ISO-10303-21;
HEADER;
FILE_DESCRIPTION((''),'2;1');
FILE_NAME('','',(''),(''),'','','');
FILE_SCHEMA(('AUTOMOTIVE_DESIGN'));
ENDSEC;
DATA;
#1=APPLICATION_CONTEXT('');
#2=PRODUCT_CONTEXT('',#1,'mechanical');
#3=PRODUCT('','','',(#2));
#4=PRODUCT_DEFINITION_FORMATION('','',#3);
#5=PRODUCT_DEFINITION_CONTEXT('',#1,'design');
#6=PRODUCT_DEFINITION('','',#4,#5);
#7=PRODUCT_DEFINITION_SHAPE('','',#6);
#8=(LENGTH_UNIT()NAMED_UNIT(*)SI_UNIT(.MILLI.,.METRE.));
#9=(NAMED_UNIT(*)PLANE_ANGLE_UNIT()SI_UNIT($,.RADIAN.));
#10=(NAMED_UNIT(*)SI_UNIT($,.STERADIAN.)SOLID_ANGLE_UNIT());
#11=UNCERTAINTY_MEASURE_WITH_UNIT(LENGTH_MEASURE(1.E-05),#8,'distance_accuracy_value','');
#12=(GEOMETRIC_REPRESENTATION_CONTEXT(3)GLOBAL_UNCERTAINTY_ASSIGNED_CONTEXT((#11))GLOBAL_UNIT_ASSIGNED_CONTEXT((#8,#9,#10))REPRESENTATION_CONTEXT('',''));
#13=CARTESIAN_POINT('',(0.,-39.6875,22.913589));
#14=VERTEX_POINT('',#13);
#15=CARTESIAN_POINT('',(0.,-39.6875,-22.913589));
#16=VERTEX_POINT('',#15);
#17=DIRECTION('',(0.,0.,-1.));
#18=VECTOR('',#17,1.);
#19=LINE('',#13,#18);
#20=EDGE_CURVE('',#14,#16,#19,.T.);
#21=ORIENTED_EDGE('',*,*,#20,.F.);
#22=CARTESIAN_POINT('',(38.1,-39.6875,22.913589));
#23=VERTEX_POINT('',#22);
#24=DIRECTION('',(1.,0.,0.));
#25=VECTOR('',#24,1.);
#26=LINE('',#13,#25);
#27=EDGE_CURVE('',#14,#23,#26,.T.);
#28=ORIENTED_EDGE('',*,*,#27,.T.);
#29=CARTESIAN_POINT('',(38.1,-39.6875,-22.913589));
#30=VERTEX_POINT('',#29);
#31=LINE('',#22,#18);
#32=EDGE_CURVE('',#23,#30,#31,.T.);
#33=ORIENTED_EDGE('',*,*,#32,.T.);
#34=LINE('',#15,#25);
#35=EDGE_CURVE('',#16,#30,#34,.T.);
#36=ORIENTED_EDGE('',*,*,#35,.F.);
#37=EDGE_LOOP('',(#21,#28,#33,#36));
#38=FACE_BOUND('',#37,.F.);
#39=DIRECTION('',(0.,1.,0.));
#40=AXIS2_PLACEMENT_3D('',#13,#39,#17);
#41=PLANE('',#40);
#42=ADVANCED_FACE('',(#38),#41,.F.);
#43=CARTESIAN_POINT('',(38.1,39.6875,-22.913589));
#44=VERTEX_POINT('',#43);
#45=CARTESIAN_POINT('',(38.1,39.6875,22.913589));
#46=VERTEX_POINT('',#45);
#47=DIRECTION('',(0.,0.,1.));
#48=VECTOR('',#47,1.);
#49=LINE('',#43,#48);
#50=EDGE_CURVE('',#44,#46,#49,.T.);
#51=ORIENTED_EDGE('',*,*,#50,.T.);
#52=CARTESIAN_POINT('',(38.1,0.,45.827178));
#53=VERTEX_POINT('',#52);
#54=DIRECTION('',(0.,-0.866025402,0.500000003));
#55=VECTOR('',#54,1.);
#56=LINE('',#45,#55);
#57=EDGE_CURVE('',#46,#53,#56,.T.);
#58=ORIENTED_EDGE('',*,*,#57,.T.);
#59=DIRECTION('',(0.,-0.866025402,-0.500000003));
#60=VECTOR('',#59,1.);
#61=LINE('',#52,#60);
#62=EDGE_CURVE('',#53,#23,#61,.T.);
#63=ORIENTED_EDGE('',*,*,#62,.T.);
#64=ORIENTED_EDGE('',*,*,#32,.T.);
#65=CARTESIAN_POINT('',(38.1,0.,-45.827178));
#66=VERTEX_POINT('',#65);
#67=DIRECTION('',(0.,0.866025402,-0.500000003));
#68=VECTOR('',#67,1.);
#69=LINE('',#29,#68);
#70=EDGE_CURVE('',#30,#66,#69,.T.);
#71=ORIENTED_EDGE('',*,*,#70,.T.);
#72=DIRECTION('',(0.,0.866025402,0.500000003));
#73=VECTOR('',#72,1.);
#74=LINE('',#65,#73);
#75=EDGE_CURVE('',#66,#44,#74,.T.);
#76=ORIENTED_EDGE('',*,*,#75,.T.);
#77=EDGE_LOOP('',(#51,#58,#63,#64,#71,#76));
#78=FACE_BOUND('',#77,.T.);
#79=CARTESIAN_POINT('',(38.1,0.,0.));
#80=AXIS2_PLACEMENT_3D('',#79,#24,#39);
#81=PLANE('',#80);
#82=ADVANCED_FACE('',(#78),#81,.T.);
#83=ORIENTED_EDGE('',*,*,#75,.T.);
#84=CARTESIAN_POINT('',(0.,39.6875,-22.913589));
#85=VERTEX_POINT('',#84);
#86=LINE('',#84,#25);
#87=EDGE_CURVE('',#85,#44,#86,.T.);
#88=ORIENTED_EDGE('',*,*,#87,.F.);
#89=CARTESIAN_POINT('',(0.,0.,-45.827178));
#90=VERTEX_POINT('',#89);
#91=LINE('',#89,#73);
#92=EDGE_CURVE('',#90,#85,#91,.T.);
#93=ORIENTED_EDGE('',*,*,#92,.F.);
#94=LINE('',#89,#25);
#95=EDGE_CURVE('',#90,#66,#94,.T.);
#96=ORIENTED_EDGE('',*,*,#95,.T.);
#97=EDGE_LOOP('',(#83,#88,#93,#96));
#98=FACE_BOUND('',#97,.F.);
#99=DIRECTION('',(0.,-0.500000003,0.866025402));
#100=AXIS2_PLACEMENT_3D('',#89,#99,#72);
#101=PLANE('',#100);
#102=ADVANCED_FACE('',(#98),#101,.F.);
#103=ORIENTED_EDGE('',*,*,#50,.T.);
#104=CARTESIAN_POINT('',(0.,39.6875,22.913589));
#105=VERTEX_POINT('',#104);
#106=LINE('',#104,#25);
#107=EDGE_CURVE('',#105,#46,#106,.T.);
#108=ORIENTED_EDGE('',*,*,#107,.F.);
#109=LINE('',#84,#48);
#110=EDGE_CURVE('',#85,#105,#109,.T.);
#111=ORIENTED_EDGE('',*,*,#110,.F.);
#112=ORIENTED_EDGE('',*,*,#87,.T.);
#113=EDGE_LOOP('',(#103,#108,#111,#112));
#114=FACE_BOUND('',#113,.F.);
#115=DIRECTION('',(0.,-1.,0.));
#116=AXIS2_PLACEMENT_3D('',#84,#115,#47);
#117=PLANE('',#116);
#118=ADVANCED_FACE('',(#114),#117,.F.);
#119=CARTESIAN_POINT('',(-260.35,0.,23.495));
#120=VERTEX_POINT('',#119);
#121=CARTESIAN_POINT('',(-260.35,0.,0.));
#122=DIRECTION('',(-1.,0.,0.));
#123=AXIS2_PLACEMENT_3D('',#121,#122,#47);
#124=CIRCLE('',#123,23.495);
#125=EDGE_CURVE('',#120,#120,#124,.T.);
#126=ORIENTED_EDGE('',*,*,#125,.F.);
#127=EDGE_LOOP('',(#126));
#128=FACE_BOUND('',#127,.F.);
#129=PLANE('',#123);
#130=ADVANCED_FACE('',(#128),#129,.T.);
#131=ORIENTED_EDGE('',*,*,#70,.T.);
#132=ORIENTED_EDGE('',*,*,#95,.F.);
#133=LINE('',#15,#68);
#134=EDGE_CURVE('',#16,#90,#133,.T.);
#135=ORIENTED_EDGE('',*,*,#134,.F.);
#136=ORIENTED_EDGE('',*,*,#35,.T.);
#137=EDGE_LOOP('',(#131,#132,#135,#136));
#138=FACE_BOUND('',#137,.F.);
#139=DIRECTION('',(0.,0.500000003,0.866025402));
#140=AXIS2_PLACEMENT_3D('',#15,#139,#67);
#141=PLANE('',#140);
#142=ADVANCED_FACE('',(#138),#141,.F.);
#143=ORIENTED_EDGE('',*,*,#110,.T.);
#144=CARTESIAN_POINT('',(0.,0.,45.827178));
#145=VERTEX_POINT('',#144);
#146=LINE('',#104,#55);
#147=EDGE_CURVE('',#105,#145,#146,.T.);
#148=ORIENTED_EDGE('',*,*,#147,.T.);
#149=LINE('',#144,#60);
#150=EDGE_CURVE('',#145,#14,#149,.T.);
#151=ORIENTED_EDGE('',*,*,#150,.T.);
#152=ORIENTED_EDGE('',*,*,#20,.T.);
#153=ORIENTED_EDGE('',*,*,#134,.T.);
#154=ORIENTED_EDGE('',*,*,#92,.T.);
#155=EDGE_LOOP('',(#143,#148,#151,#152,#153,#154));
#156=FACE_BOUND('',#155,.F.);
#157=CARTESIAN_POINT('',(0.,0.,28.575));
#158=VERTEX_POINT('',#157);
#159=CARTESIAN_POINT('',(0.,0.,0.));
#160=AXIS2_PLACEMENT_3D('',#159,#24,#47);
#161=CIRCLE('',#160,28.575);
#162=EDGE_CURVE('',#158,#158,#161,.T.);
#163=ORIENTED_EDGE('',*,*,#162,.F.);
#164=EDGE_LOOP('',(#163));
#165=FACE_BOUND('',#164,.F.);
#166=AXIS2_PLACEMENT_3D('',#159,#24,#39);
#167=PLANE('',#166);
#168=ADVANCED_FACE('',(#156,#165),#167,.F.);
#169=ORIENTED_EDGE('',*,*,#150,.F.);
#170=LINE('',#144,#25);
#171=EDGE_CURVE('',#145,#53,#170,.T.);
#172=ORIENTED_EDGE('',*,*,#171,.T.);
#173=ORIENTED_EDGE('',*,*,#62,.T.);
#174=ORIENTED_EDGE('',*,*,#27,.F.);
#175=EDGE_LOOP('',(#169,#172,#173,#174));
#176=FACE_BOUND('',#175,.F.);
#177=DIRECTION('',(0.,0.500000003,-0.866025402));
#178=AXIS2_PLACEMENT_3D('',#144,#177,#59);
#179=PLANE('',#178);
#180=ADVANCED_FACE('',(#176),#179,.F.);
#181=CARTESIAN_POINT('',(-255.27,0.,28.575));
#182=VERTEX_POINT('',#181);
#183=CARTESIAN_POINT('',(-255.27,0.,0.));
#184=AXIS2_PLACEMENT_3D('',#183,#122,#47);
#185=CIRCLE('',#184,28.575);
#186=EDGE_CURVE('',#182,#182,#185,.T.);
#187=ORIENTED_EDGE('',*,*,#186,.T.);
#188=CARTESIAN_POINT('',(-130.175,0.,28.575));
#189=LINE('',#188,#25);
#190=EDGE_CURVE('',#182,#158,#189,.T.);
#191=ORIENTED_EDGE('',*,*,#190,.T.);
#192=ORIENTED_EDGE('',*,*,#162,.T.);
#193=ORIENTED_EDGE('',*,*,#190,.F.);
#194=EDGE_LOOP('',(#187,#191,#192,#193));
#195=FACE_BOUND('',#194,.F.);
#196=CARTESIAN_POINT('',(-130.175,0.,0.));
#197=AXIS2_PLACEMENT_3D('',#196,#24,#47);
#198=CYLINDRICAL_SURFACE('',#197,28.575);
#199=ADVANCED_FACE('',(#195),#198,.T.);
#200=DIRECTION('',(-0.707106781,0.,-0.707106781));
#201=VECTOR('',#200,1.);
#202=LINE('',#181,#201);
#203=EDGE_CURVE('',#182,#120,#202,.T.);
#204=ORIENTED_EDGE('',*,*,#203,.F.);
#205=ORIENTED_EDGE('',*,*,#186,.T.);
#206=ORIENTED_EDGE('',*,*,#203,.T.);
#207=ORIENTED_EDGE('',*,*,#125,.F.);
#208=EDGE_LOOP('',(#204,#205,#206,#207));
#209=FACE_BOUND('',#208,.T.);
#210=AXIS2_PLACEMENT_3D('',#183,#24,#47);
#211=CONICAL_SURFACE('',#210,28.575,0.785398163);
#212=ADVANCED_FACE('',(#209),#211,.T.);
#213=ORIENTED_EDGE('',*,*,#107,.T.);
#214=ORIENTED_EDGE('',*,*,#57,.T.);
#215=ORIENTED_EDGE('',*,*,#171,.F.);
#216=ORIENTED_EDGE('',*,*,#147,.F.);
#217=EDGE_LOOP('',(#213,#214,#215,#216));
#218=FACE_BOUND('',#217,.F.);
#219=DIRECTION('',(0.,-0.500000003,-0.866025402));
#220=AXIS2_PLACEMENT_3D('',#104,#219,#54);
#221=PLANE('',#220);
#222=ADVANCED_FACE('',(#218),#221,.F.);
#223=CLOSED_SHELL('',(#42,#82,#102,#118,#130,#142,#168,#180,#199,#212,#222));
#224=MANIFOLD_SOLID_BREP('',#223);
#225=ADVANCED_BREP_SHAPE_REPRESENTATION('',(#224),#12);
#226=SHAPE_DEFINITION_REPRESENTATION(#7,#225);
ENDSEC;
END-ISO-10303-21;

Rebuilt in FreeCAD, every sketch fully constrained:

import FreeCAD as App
import Part
import Sketcher
from FreeCAD import Vector
Q = App.Units.Quantity


def edges_at(feature, points):
    """Names of the edges that pass closest to the given points."""
    edges = feature.Shape.Edges
    near = lambda p: min(range(len(edges)), key=lambda i: edges[i].distToShape(Part.Vertex(*p))[0])
    return sorted({f"Edge{near(p) + 1}" for p in points})

doc = App.newDocument("Part")
body = doc.addObject("PartDesign::Body", "Body")

sketch1 = body.newObject("Sketcher::SketchObject", "Sketch")
sketch1.AttachmentSupport = (doc.getObject("XZ_Plane"), [""])
sketch1.MapMode = "FlatFace"
sketch1.addGeometry(Part.LineSegment(Vector(-260, 29, 0), Vector(-260, 0, 0)), False)
sketch1.addGeometry(Part.LineSegment(Vector(-260, 0, 0), Vector(0, 0, 0)), False)
sketch1.addGeometry(Part.LineSegment(Vector(0, 0, 0), Vector(0, 29, 0)), False)
sketch1.addGeometry(Part.LineSegment(Vector(0, 29, 0), Vector(-260, 29, 0)), False)
sketch1.addConstraint(Sketcher.Constraint("Coincident", 0, 2, 1, 1))
sketch1.addConstraint(Sketcher.Constraint("Coincident", 1, 2, 2, 1))
sketch1.addConstraint(Sketcher.Constraint("Coincident", 2, 2, 3, 1))
sketch1.addConstraint(Sketcher.Constraint("Coincident", 3, 2, 0, 1))
sketch1.addConstraint(Sketcher.Constraint("Vertical", 0))
sketch1.addConstraint(Sketcher.Constraint("Horizontal", 1))
sketch1.addConstraint(Sketcher.Constraint("Vertical", 2))
sketch1.addConstraint(Sketcher.Constraint("Horizontal", 3))
sketch1.addConstraint(Sketcher.Constraint("Coincident", 1, 2, -1, 1))
sketch1.addConstraint(Sketcher.Constraint("DistanceX", 1, 1, 1, 2, Q("10.25 in")))
sketch1.addConstraint(Sketcher.Constraint("DistanceY", 0, 2, 0, 1, Q("1.125 in")))
revolution = body.newObject("PartDesign::Revolution", "Revolution")
revolution.Profile = sketch1
revolution.ReferenceAxis = (sketch1, ["H_Axis"])
revolution.Angle = 360

sketch2 = body.newObject("Sketcher::SketchObject", "Sketch001")
sketch2.AttachmentSupport = (doc.getObject("YZ_Plane"), [""])
sketch2.MapMode = "FlatFace"
sketch2.addGeometry(Part.LineSegment(Vector(-40, -23, 0), Vector(0, -46, 0)), False)
sketch2.addGeometry(Part.LineSegment(Vector(0, -46, 0), Vector(40, -23, 0)), False)
sketch2.addGeometry(Part.LineSegment(Vector(40, -23, 0), Vector(40, 23, 0)), False)
sketch2.addGeometry(Part.LineSegment(Vector(40, 23, 0), Vector(0, 46, 0)), False)
sketch2.addGeometry(Part.LineSegment(Vector(0, 46, 0), Vector(-40, 23, 0)), False)
sketch2.addGeometry(Part.LineSegment(Vector(-40, 23, 0), Vector(-40, -23, 0)), False)
sketch2.addConstraint(Sketcher.Constraint("Coincident", 0, 2, 1, 1))
sketch2.addConstraint(Sketcher.Constraint("Coincident", 1, 2, 2, 1))
sketch2.addConstraint(Sketcher.Constraint("Coincident", 2, 2, 3, 1))
sketch2.addConstraint(Sketcher.Constraint("Coincident", 3, 2, 4, 1))
sketch2.addConstraint(Sketcher.Constraint("Coincident", 4, 2, 5, 1))
sketch2.addConstraint(Sketcher.Constraint("Coincident", 5, 2, 0, 1))
sketch2.addConstraint(Sketcher.Constraint("Vertical", 2))
sketch2.addConstraint(Sketcher.Constraint("Vertical", 5))
sketch2.addConstraint(Sketcher.Constraint("Symmetric", 0, 2, 3, 2, -1, 1))
sketch2.addConstraint(Sketcher.Constraint("Symmetric", 1, 2, 4, 2, -1, 1))
sketch2.addConstraint(Sketcher.Constraint("PointOnObject", 0, 2, -2))
sketch2.addConstraint(Sketcher.Constraint("Parallel", 0, 3))
sketch2.addConstraint(Sketcher.Constraint("Horizontal", 2, 2, 4, 2))
sketch2.addConstraint(Sketcher.Constraint("Angle", 0, Q("-30 deg")))
sketch2.addConstraint(Sketcher.Constraint("DistanceX", -1, 1, 1, 2, Q("1.5625 in")))
sketch2.addConstraint(Sketcher.Constraint("DistanceY", 2, 1, 2, 2, 45.827178))
pad1 = body.newObject("PartDesign::Pad", "Pad")
pad1.Profile = sketch2
pad1.Length = Q("1.5 in")
doc.recompute()

chamfer = body.newObject("PartDesign::Chamfer", "Chamfer")
chamfer.Base = (pad1, edges_at(pad1, [(-260.35, 0, -28.575)]))
chamfer.Size = Q("0.2 in")

doc.recompute()
